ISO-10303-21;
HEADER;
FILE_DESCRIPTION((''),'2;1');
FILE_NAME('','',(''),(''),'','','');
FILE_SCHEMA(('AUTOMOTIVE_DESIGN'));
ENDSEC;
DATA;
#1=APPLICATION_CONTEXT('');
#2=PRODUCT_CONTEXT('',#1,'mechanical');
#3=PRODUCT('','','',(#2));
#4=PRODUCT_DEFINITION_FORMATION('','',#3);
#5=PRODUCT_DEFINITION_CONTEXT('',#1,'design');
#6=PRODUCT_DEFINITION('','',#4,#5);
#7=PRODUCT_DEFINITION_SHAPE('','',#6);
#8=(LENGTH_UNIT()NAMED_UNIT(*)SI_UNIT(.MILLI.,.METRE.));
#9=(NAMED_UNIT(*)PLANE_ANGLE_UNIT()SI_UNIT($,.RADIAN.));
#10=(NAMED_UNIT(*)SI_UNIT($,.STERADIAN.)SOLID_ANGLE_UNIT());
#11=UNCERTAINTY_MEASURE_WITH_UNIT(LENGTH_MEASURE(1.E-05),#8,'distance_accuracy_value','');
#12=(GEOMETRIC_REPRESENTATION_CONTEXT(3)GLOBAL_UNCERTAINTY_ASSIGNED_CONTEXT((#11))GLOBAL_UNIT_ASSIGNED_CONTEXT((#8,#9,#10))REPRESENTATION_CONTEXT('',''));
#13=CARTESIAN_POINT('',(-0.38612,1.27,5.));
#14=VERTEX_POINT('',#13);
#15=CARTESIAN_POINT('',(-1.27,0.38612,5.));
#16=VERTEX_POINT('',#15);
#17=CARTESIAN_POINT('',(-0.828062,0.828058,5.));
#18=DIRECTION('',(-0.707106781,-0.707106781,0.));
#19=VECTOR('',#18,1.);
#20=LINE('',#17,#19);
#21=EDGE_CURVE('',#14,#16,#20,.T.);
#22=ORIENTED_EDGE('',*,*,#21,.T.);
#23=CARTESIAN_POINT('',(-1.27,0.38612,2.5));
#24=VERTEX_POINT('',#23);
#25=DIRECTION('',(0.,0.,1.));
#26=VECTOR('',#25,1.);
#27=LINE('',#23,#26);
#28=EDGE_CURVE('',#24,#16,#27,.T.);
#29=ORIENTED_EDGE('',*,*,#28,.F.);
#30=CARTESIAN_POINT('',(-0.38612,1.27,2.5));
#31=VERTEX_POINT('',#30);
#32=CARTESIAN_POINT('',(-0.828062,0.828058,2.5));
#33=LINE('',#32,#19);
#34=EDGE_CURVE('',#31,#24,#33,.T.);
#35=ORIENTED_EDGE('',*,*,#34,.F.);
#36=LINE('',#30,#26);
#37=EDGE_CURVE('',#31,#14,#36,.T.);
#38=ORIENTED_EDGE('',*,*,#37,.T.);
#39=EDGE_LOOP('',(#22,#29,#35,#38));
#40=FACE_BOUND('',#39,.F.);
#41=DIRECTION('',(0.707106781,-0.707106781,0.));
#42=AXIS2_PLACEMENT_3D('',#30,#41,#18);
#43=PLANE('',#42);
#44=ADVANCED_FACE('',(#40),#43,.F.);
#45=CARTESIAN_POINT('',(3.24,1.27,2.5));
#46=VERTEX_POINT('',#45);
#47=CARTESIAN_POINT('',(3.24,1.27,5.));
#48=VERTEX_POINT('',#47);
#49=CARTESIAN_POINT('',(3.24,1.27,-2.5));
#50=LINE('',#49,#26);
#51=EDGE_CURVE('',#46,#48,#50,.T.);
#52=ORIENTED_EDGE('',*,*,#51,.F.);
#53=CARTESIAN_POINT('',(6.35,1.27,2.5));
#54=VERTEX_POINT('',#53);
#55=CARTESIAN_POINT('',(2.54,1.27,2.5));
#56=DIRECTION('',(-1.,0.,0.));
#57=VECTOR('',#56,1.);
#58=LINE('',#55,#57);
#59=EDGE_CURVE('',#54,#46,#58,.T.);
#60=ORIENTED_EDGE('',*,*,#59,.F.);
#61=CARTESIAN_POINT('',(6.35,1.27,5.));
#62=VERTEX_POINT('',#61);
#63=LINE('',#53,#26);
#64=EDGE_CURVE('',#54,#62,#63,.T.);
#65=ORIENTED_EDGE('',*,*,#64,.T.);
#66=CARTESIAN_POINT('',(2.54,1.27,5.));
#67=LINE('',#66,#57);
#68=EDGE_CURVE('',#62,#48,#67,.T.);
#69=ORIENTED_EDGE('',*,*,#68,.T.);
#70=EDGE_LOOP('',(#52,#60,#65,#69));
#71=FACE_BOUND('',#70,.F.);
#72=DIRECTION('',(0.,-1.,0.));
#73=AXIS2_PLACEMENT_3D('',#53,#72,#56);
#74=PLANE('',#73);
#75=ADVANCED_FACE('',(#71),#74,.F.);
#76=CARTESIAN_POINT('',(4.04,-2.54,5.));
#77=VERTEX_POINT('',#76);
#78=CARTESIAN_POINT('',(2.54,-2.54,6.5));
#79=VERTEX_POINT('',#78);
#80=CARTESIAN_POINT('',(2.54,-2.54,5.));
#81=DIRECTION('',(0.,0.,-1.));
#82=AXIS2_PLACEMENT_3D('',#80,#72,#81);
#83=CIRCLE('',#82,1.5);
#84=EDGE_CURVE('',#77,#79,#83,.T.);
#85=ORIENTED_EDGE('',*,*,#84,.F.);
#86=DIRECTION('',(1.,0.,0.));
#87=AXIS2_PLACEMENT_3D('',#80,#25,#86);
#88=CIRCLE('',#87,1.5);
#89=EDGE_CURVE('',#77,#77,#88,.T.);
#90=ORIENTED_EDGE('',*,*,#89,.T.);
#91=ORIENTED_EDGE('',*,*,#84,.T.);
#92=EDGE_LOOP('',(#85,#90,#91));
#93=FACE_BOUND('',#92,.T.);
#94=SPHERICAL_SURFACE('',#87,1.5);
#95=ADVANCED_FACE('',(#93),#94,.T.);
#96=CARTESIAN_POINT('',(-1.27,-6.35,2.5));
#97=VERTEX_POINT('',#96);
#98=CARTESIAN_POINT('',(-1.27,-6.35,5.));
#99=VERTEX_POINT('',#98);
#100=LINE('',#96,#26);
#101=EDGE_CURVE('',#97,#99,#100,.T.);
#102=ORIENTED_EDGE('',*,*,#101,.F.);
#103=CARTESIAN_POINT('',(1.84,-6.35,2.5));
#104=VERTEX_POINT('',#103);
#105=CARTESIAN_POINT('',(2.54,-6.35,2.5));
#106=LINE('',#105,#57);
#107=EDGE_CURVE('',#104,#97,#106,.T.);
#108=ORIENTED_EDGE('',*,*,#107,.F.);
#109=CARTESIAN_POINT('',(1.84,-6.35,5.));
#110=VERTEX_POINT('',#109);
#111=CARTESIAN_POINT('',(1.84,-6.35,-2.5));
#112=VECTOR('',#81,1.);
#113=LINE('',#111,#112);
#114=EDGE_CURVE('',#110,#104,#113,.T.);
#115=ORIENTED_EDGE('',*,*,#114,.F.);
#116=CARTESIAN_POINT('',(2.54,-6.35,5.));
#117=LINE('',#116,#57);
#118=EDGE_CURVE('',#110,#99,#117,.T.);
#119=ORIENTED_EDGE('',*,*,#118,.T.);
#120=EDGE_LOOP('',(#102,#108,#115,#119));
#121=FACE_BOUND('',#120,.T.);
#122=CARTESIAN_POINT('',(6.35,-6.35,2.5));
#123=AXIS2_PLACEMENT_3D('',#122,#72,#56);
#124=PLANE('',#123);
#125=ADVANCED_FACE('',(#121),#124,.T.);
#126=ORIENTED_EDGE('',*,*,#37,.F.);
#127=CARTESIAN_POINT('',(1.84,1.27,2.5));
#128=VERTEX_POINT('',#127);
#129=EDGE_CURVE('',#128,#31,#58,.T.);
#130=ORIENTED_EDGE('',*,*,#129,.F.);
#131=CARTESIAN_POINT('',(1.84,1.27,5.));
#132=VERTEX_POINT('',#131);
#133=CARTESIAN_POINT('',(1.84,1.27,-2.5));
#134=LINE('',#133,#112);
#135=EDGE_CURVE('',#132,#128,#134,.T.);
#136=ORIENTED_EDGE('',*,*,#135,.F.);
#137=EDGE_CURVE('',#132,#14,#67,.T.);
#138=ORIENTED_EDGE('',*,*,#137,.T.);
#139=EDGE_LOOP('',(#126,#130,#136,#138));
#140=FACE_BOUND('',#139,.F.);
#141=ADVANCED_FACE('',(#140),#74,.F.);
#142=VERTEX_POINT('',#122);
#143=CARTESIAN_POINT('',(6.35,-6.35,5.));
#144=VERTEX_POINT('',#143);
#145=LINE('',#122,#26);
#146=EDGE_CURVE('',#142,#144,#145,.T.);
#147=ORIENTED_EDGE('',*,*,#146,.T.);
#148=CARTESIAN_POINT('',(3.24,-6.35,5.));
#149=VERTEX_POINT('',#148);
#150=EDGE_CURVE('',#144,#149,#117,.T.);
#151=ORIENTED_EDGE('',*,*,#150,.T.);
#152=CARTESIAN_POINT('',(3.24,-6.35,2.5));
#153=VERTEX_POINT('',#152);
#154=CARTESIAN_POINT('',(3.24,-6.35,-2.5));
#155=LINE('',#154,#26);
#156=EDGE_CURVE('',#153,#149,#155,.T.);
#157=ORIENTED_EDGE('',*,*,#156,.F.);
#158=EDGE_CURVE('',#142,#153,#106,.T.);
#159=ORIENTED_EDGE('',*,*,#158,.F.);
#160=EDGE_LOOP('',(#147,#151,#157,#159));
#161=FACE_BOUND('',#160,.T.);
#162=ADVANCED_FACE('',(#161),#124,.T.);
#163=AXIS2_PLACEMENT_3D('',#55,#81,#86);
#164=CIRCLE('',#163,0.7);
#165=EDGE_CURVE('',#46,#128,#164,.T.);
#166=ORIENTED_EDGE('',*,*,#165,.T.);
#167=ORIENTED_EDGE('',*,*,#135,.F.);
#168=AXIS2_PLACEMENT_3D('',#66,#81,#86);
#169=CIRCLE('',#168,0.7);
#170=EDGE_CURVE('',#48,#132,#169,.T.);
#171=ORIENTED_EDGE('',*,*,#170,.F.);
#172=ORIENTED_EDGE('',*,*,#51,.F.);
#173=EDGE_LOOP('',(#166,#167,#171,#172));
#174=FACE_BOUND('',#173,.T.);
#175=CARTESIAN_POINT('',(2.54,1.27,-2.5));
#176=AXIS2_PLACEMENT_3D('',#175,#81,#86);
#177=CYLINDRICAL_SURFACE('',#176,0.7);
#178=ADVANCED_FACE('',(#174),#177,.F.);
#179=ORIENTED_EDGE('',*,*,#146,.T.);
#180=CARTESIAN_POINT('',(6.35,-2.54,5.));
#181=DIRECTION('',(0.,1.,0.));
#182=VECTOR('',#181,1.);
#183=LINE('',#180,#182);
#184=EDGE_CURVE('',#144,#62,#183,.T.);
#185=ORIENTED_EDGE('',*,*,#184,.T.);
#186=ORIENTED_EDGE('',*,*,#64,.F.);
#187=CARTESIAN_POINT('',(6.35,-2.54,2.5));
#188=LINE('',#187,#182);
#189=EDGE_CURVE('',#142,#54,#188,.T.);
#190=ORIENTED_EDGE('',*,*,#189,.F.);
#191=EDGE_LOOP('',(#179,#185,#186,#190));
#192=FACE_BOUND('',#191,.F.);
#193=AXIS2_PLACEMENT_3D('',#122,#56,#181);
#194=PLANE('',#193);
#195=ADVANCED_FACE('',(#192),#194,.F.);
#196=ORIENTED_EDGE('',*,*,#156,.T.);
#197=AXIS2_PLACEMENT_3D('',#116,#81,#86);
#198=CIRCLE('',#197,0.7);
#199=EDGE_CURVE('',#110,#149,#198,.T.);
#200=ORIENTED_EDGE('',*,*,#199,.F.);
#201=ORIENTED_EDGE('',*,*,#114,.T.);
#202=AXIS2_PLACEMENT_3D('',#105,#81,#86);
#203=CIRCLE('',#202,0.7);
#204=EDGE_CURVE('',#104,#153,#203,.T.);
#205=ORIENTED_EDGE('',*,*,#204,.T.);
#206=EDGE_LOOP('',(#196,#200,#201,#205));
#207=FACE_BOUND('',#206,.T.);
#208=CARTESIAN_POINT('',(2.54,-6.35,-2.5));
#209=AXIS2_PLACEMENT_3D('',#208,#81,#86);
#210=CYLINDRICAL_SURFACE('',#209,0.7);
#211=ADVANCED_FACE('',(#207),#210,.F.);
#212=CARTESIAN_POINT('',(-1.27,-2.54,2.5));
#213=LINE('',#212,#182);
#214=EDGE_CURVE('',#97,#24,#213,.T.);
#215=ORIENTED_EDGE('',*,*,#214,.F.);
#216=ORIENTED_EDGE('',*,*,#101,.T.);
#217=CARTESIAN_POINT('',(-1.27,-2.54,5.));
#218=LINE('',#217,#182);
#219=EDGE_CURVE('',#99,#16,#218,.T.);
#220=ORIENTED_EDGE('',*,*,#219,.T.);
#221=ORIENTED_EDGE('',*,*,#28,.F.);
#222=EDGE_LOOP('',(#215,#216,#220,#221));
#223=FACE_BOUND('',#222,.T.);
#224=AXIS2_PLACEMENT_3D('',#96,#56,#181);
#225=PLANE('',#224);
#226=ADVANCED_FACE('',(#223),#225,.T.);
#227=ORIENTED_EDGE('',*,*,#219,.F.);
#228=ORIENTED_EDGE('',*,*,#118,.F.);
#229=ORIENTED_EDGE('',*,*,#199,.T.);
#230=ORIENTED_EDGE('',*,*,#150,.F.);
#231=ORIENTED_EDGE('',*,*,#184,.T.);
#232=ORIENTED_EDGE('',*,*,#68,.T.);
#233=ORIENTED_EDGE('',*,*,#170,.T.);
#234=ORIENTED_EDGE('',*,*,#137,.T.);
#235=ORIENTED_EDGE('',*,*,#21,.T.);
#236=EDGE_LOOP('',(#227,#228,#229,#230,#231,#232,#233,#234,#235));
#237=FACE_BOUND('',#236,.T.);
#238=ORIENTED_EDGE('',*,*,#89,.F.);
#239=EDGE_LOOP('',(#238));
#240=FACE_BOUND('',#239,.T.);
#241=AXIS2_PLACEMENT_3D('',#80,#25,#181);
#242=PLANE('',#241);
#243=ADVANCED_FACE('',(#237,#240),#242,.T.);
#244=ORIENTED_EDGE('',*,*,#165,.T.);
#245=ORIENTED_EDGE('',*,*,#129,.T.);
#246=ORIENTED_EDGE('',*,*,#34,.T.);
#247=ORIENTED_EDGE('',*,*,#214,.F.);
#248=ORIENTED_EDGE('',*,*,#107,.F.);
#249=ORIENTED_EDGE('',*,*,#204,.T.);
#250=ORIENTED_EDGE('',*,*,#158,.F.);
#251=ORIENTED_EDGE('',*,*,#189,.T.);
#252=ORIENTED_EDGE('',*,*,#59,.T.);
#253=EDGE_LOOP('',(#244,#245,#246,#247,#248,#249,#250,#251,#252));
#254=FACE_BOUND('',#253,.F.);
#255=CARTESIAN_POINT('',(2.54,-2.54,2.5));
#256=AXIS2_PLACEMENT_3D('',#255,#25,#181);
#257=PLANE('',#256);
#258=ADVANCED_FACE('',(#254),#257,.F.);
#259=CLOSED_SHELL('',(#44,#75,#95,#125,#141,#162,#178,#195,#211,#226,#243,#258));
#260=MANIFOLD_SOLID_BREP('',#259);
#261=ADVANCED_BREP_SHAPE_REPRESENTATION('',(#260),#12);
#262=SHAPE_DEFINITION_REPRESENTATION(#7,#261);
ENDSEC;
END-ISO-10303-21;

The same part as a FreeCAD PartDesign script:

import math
import FreeCAD as App
import Part
import Sketcher

V = App.Vector
Q = App.Units.Quantity


def add_polygon(sketch, points):
    """Adds a closed chain of lines whose ends are joined by coincident constraints."""
    first, n = sketch.GeometryCount, len(points)
    for a, b in zip(points, points[1:] + points[:1]):
        sketch.addGeometry(Part.LineSegment(App.Vector(*a, 0), App.Vector(*b, 0)), False)
    for i in range(n):
        sketch.addConstraint(Sketcher.Constraint("Coincident", first + i, 2, first + (i + 1) % n, 1))

doc = App.newDocument("Part")
body = doc.addObject("PartDesign::Body", "Body")

# Sketch on XY plane
sketch1 = doc.addObject("Sketcher::SketchObject", "Sketch")
body.addObject(sketch1)
sketch1.AttachmentSupport = (doc.XY_Plane, [""])
sketch1.MapMode = "FlatFace"
sketch1.AttachmentOffset = App.Placement(V(0, 0, -4), App.Rotation())
add_polygon(sketch1, [(-2, 2), (-2, -2), (2, -2), (2, 2)])  # lines 0-3
sketch1.addConstraint(Sketcher.Constraint("Vertical", 0))
sketch1.addConstraint(Sketcher.Constraint("Horizontal", 1))
sketch1.addConstraint(Sketcher.Constraint("Vertical", 2))
sketch1.addConstraint(Sketcher.Constraint("Horizontal", 3))
sketch1.addConstraint(Sketcher.Constraint("Symmetric", 0, 2, 2, 2, -1, 1))
sketch1.addConstraint(Sketcher.Constraint("Equal", 3, 0))
sketch1.addConstraint(Sketcher.Constraint("DistanceX", 1, 1, 1, 2, Q("4 mm")))
pad1 = doc.addObject("PartDesign::Pad", "Pad")
body.addObject(pad1)
pad1.Profile = sketch1
pad1.Length = 4
body2 = doc.addObject("PartDesign::Body", "Body001")

# Sketch on XZ plane
sketch2 = doc.addObject("Sketcher::SketchObject", "Sketch001")
body2.addObject(sketch2)
sketch2.AttachmentSupport = (doc.getObject("XZ_Plane001"), [""])
sketch2.MapMode = "FlatFace"
sketch2.addGeometry(Part.ArcOfCircle(Part.Circle(V(0, 0, 0), V(0, 0, 1), 1.5), math.radians(-90), math.radians(90)), False)
sketch2.addGeometry(Part.LineSegment(V(0, 1.5, 0), V(0, -1.5, 0)), False)
sketch2.addConstraint(Sketcher.Constraint("Coincident", 0, 1, 1, 2))
sketch2.addConstraint(Sketcher.Constraint("Coincident", 1, 1, 0, 2))
sketch2.addConstraint(Sketcher.Constraint("Vertical", 1))
sketch2.addConstraint(Sketcher.Constraint("Coincident", 0, 3, -1, 1))
sketch2.addConstraint(Sketcher.Constraint("PointOnObject", 0, 1, -2))
sketch2.addConstraint(Sketcher.Constraint("Radius", 0, Q("1.5 mm")))
revolution = doc.addObject("PartDesign::Revolution", "Revolution")
body2.addObject(revolution)
revolution.Profile = sketch2
revolution.ReferenceAxis = (sketch2, ["V_Axis"])
revolution.Angle = 360
doc.recompute()

boolean = doc.addObject("PartDesign::Boolean", "Boolean")
body2.addObject(boolean)
boolean.Type = "Cut"
boolean.addObjects([body])
body3 = doc.addObject("PartDesign::Body", "Body002")
doc.recompute()

body2.Placement = App.Placement(V(3.81, -3.81, 7.5), App.Rotation(V(0, 0, 1), 0))
boolean2 = doc.addObject("PartDesign::Boolean", "Boolean001")
body3.addObject(boolean2)
boolean2.Type = "Fuse"
boolean2.addObjects([body2])
body4 = doc.addObject("PartDesign::Body", "Body003")

# Sketch on XY plane
sketch3 = doc.addObject("Sketcher::SketchObject", "Sketch002")
body4.addObject(sketch3)
sketch3.AttachmentSupport = (doc.getObject("XY_Plane003"), [""])
sketch3.MapMode = "FlatFace"
sketch3.addGeometry(Part.Circle(V(3.81, -7.62, 0), V(0, 0, 1), 0.7), False)
sketch3.addConstraint(Sketcher.Constraint("Diameter", 0, Q("1.4 mm")))
sketch3.addConstraint(Sketcher.Constraint("DistanceX", -1, 1, 0, 3, Q("3.81 mm")))
sketch3.addConstraint(Sketcher.Constraint("DistanceY", 0, 3, -1, 1, Q("7.62 mm")))
pad2 = doc.addObject("PartDesign::Pad", "Pad001")
body4.addObject(pad2)
pad2.Profile = sketch3
pad2.Length = 10
body5 = doc.addObject("PartDesign::Body", "Body004")

# Sketch on XY plane
sketch4 = doc.addObject("Sketcher::SketchObject", "Sketch003")
body5.addObject(sketch4)
sketch4.AttachmentSupport = (doc.getObject("XY_Plane004"), [""])
sketch4.MapMode = "FlatFace"
sketch4.addGeometry(Part.Circle(V(3.81, 0, 0), V(0, 0, 1), 0.7), False)
sketch4.addConstraint(Sketcher.Constraint("PointOnObject", 0, 3, -1))
sketch4.addConstraint(Sketcher.Constraint("Diameter", 0, Q("1.4 mm")))
sketch4.addConstraint(Sketcher.Constraint("DistanceX", -1, 1, 0, 3, Q("3.81 mm")))
pad3 = doc.addObject("PartDesign::Pad", "Pad002")
body5.addObject(pad3)
pad3.Profile = sketch4
pad3.Length = 10
body6 = doc.addObject("PartDesign::Body", "Body005")

# Sketch on XY plane
sketch5 = doc.addObject("Sketcher::SketchObject", "Sketch004")
body6.addObject(sketch5)
sketch5.AttachmentSupport = (doc.getObject("XY_Plane005"), [""])
sketch5.MapMode = "FlatFace"
add_polygon(sketch5, [(0, 1.25), (0, 0), (1.25, 0), (1.25, 1.25)])  # lines 0-3
sketch5.addConstraint(Sketcher.Constraint("Vertical", 0))
sketch5.addConstraint(Sketcher.Constraint("Horizontal", 1))
sketch5.addConstraint(Sketcher.Constraint("Vertical", 2))
sketch5.addConstraint(Sketcher.Constraint("Horizontal", 3))
sketch5.addConstraint(Sketcher.Constraint("Coincident", 0, 2, -1, 1))
sketch5.addConstraint(Sketcher.Constraint("Equal", 3, 0))
sketch5.addConstraint(Sketcher.Constraint("DistanceX", 1, 1, 1, 2, Q("1.25 mm")))
pad4 = doc.addObject("PartDesign::Pad", "Pad003")
body6.addObject(pad4)
pad4.Profile = sketch5
pad4.Length = 2.5
body7 = doc.addObject("PartDesign::Body", "Body006")
doc.recompute()

body6.Placement = App.Placement(V(7.62, 6.73612, 0), App.Rotation(V(0, 0, 1), 45))
boolean3 = doc.addObject("PartDesign::Boolean", "Boolean002")
body7.addObject(boolean3)
boolean3.Type = "Fuse"
boolean3.addObjects([body6])
body8 = doc.addObject("PartDesign::Body", "Body007")

# Sketch on XY plane
sketch6 = doc.addObject("Sketcher::SketchObject", "Sketch005")
body8.addObject(sketch6)
sketch6.AttachmentSupport = (doc.getObject("XY_Plane007"), [""])
sketch6.MapMode = "FlatFace"
add_polygon(sketch6, [(0, 7.62), (0, 0), (7.62, 0), (7.62, 7.62)])  # lines 0-3
sketch6.addConstraint(Sketcher.Constraint("Vertical", 0))
sketch6.addConstraint(Sketcher.Constraint("Horizontal", 1))
sketch6.addConstraint(Sketcher.Constraint("Vertical", 2))
sketch6.addConstraint(Sketcher.Constraint("Horizontal", 3))
sketch6.addConstraint(Sketcher.Constraint("Coincident", 0, 2, -1, 1))
sketch6.addConstraint(Sketcher.Constraint("Equal", 3, 0))
sketch6.addConstraint(Sketcher.Constraint("DistanceX", 1, 1, 1, 2, Q("7.62 mm")))
pad5 = doc.addObject("PartDesign::Pad", "Pad004")
body8.addObject(pad5)
pad5.Profile = sketch6
pad5.Length = 2.5
doc.recompute()

boolean4 = doc.addObject("PartDesign::Boolean", "Boolean003")
body8.addObject(boolean4)
boolean4.Type = "Cut"
boolean4.addObjects([body7])
body9 = doc.addObject("PartDesign::Body", "Body008")
doc.recompute()

body8.Placement = App.Placement(V(7.62, -7.62, 5), App.Rotation(V(0, 0, 1), 90))
boolean5 = doc.addObject("PartDesign::Boolean", "Boolean004")
body9.addObject(boolean5)
boolean5.Type = "Fuse"
boolean5.addObjects([body8])
doc.recompute()

boolean6 = doc.addObject("PartDesign::Boolean", "Boolean005")
body9.addObject(boolean6)
boolean6.Type = "Cut"
boolean6.addObjects([body5])
doc.recompute()

boolean7 = doc.addObject("PartDesign::Boolean", "Boolean006")
body9.addObject(boolean7)
boolean7.Type = "Cut"
boolean7.addObjects([body4])
doc.recompute()

boolean8 = doc.addObject("PartDesign::Boolean", "Boolean007")
body9.addObject(boolean8)
boolean8.Type = "Fuse"
boolean8.addObjects([body3])
body10 = doc.addObject("PartDesign::Body", "Body009")
doc.recompute()

body9.Placement = App.Placement(V(-1.27, 1.27, -2.5), App.Rotation(V(0, 0, 1), 0))
boolean9 = doc.addObject("PartDesign::Boolean", "Boolean008")
body10.addObject(boolean9)
boolean9.Type = "Fuse"
boolean9.addObjects([body9])

doc.recompute()
